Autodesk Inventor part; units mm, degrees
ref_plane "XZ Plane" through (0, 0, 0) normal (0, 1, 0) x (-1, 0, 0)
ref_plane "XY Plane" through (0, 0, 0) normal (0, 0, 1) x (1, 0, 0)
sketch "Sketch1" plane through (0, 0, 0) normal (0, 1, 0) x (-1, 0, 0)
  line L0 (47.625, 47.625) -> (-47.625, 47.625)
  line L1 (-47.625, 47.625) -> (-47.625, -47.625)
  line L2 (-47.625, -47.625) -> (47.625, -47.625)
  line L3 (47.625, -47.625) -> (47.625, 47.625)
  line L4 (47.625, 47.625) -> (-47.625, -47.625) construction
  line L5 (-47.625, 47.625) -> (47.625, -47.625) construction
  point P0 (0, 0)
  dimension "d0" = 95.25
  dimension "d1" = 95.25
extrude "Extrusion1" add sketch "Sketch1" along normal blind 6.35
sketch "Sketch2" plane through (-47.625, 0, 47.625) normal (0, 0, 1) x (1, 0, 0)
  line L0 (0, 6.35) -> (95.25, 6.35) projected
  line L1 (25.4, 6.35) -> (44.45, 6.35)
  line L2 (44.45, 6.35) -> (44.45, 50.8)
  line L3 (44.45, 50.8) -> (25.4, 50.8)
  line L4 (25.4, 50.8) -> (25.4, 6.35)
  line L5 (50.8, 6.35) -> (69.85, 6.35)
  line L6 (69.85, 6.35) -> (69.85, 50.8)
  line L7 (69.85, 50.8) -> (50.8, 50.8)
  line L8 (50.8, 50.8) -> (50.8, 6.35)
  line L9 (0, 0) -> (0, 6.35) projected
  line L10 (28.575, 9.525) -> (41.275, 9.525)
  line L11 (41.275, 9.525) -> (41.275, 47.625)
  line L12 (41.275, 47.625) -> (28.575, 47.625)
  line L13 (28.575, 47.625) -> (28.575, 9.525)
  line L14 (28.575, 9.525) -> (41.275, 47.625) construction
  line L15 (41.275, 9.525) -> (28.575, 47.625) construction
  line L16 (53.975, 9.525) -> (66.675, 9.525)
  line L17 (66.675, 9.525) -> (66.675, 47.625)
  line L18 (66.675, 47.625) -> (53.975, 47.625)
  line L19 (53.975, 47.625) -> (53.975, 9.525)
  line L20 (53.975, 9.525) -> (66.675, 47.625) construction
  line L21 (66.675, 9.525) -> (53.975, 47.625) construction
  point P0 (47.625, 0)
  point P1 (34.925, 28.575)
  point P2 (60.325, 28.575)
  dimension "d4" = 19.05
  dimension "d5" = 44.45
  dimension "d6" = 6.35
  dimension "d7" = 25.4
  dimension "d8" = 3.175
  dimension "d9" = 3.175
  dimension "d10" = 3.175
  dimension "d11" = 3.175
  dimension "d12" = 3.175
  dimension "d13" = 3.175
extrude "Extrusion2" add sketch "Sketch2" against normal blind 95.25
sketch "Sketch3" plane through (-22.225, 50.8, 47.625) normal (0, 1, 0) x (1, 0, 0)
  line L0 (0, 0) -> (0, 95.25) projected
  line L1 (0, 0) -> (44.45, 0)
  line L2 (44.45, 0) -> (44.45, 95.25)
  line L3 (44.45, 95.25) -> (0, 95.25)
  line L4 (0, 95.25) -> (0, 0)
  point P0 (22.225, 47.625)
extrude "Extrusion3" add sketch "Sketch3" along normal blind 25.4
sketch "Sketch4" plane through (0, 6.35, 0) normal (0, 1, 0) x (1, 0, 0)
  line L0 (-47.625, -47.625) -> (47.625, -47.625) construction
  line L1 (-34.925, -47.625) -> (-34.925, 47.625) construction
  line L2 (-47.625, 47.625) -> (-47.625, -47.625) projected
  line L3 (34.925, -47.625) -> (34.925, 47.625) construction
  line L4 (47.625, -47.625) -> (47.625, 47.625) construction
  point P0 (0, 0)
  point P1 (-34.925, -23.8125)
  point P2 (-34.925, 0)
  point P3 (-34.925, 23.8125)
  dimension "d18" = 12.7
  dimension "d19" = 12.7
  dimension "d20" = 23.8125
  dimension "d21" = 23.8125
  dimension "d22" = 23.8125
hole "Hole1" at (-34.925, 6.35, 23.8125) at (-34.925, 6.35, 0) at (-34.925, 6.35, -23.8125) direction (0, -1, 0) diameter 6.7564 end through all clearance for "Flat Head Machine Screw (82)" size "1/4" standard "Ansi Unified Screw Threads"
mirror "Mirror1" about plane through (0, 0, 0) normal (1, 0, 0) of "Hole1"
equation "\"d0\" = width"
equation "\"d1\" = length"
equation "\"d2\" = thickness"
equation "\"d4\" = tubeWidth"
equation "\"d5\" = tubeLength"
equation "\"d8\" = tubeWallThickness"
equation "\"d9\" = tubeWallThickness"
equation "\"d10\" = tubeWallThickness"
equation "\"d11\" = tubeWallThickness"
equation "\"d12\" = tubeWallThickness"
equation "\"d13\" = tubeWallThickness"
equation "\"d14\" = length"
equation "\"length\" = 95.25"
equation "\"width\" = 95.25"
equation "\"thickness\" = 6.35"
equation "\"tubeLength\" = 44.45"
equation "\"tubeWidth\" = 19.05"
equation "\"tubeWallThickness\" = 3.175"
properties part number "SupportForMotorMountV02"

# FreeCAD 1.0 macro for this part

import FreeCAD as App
import Part
import Sketcher
from FreeCAD import Vector
Q = App.Units.Quantity

doc = App.newDocument("Part")
body = doc.addObject("PartDesign::Body", "Body")

# Sketch on XZ plane
sketch1 = doc.addObject("Sketcher::SketchObject", "Sketch")
body.addObject(sketch1)
sketch1.AttachmentSupport = (doc.XZ_Plane, [""])
sketch1.MapMode = "FlatFace"
sketch1.addGeometry([
    Part.LineSegment(Vector(-48, -48, 0), Vector(-48, 48, 0)),
    Part.LineSegment(Vector(-48, 48, 0), Vector(48, 48, 0)),
    Part.LineSegment(Vector(48, 48, 0), Vector(48, -48, 0)),
    Part.LineSegment(Vector(48, -48, 0), Vector(-48, -48, 0)),
], False)
sketch1.addConstraint([
    Sketcher.Constraint("Coincident", 0, 2, 1, 1),
    Sketcher.Constraint("Coincident", 1, 2, 2, 1),
    Sketcher.Constraint("Coincident", 2, 2, 3, 1),
    Sketcher.Constraint("Coincident", 3, 2, 0, 1),
    Sketcher.Constraint("Vertical", 0),
    Sketcher.Constraint("Horizontal", 1),
    Sketcher.Constraint("Vertical", 2),
    Sketcher.Constraint("Horizontal", 3),
    Sketcher.Constraint("Symmetric", 0, 2, 2, 2, -1, 1),
    Sketcher.Constraint("Equal", 3, 0),
    Sketcher.Constraint("DistanceX", 1, 1, 1, 2, Q("3.75 in")),
])
pad1 = doc.addObject("PartDesign::Pad", "Pad")
body.addObject(pad1)
pad1.Profile = sketch1
pad1.Length = Q("0.25 in")
pad1.Reversed = True

# Sketch on XY plane
sketch2 = doc.addObject("Sketcher::SketchObject", "Sketch001")
body.addObject(sketch2)
sketch2.AttachmentSupport = (doc.XY_Plane, [""])
sketch2.MapMode = "FlatFace"
sketch2.AttachmentOffset = App.Placement(Vector(0, 0, 1.875 * 25.4), App.Rotation())
sketch2.addGeometry([
    Part.LineSegment(Vector(-22, 51, 0), Vector(-22, 6, 0)),  # 0
    Part.LineSegment(Vector(-22, 6, 0), Vector(-3, 6, 0)),  # 1
    Part.LineSegment(Vector(-3, 6, 0), Vector(-3, 51, 0)),  # 2
    Part.LineSegment(Vector(-3, 51, 0), Vector(-22, 51, 0)),  # 3
    Part.LineSegment(Vector(-6, 10, 0), Vector(-19, 10, 0)),  # 4
    Part.LineSegment(Vector(-19, 10, 0), Vector(-19, 48, 0)),  # 5
    Part.LineSegment(Vector(-19, 48, 0), Vector(-6, 48, 0)),  # 6
    Part.LineSegment(Vector(-6, 48, 0), Vector(-6, 10, 0)),  # 7
    Part.LineSegment(Vector(3, 51, 0), Vector(3, 6, 0)),  # 8
    Part.LineSegment(Vector(3, 6, 0), Vector(22, 6, 0)),  # 9
    Part.LineSegment(Vector(22, 6, 0), Vector(22, 51, 0)),  # 10
    Part.LineSegment(Vector(22, 51, 0), Vector(3, 51, 0)),  # 11
    Part.LineSegment(Vector(19, 10, 0), Vector(6, 10, 0)),  # 12
    Part.LineSegment(Vector(6, 10, 0), Vector(6, 48, 0)),  # 13
    Part.LineSegment(Vector(6, 48, 0), Vector(19, 48, 0)),  # 14
    Part.LineSegment(Vector(19, 48, 0), Vector(19, 10, 0)),  # 15
], False)
sketch2.addConstraint([
    Sketcher.Constraint("Coincident", 0, 2, 1, 1),
    Sketcher.Constraint("Coincident", 1, 2, 2, 1),
    Sketcher.Constraint("Coincident", 2, 2, 3, 1),
    Sketcher.Constraint("Coincident", 3, 2, 0, 1),
    Sketcher.Constraint("Coincident", 4, 2, 5, 1),
    Sketcher.Constraint("Coincident", 5, 2, 6, 1),
    Sketcher.Constraint("Coincident", 6, 2, 7, 1),
    Sketcher.Constraint("Coincident", 7, 2, 4, 1),
    Sketcher.Constraint("Coincident", 8, 2, 9, 1),
    Sketcher.Constraint("Coincident", 9, 2, 10, 1),
    Sketcher.Constraint("Coincident", 10, 2, 11, 1),
    Sketcher.Constraint("Coincident", 11, 2, 8, 1),
    Sketcher.Constraint("Coincident", 12, 2, 13, 1),
    Sketcher.Constraint("Coincident", 13, 2, 14, 1),
    Sketcher.Constraint("Coincident", 14, 2, 15, 1),
    Sketcher.Constraint("Coincident", 15, 2, 12, 1),
    Sketcher.Constraint("Vertical", 0),
    Sketcher.Constraint("Horizontal", 1),
    Sketcher.Constraint("Vertical", 2),
    Sketcher.Constraint("Horizontal", 3),
    Sketcher.Constraint("Horizontal", 4),
    Sketcher.Constraint("Vertical", 5),
    Sketcher.Constraint("Horizontal", 6),
    Sketcher.Constraint("Vertical", 7),
    Sketcher.Constraint("Vertical", 8),
    Sketcher.Constraint("Horizontal", 9),
    Sketcher.Constraint("Vertical", 10),
    Sketcher.Constraint("Horizontal", 11),
    Sketcher.Constraint("Horizontal", 12),
    Sketcher.Constraint("Vertical", 13),
    Sketcher.Constraint("Horizontal", 14),
    Sketcher.Constraint("Vertical", 15),
    Sketcher.Constraint("Symmetric", 1, 2, 8, 2, -2),
    Sketcher.Constraint("Symmetric", 3, 2, 10, 2, -2),
    Sketcher.Constraint("Symmetric", 7, 2, 12, 2, -2),
    Sketcher.Constraint("Symmetric", 5, 2, 14, 2, -2),
    Sketcher.Constraint("DistanceX", 0, 2, 8, 2, Q("1 in")),
    Sketcher.Constraint("DistanceX", 4, 2, 12, 2, Q("1 in")),
    Sketcher.Constraint("DistanceX", 1, 1, 1, 2, Q("0.75 in")),
    Sketcher.Constraint("DistanceY", 0, 2, 0, 1, Q("1.75 in")),
    Sketcher.Constraint("DistanceY", -1, 1, 0, 2, Q("0.25 in")),
    Sketcher.Constraint("DistanceX", 4, 2, -1, 1, Q("0.75 in")),
    Sketcher.Constraint("DistanceY", 5, 1, 5, 2, Q("1.5 in")),
    Sketcher.Constraint("DistanceY", 0, 2, 4, 2, Q("0.125 in")),
])
pad2 = doc.addObject("PartDesign::Pad", "Pad001")
body.addObject(pad2)
pad2.Profile = sketch2
pad2.Length = Q("3.75 in")
pad2.Reversed = True

# Sketch on XZ plane
sketch3 = doc.addObject("Sketcher::SketchObject", "Sketch002")
body.addObject(sketch3)
sketch3.AttachmentSupport = (doc.XZ_Plane, [""])
sketch3.MapMode = "FlatFace"
sketch3.AttachmentOffset = App.Placement(Vector(0, 0, -2 * 25.4), App.Rotation())
sketch3.addGeometry([
    Part.LineSegment(Vector(-22, -48, 0), Vector(-22, 48, 0)),
    Part.LineSegment(Vector(-22, 48, 0), Vector(22, 48, 0)),
    Part.LineSegment(Vector(22, 48, 0), Vector(22, -48, 0)),
    Part.LineSegment(Vector(22, -48, 0), Vector(-22, -48, 0)),
], False)
sketch3.addConstraint([
    Sketcher.Constraint("Coincident", 0, 2, 1, 1),
    Sketcher.Constraint("Coincident", 1, 2, 2, 1),
    Sketcher.Constraint("Coincident", 2, 2, 3, 1),
    Sketcher.Constraint("Coincident", 3, 2, 0, 1),
    Sketcher.Constraint("Vertical", 0),
    Sketcher.Constraint("Horizontal", 1),
    Sketcher.Constraint("Vertical", 2),
    Sketcher.Constraint("Horizontal", 3),
    Sketcher.Constraint("Symmetric", 0, 2, 2, 2, -1, 1),
    Sketcher.Constraint("DistanceX", 1, 1, 1, 2, Q("1.75 in")),
    Sketcher.Constraint("DistanceY", 0, 1, 0, 2, Q("3.75 in")),
])
pad3 = doc.addObject("PartDesign::Pad", "Pad002")
body.addObject(pad3)
pad3.Profile = sketch3
pad3.Length = Q("1 in")
pad3.Reversed = True

# Sketch on XZ plane
sketch4 = doc.addObject("Sketcher::SketchObject", "Sketch003")
body.addObject(sketch4)
sketch4.AttachmentSupport = (doc.XZ_Plane, [""])
sketch4.MapMode = "FlatFace"
sketch4.AttachmentOffset = App.Placement(Vector(0, 0, -0.25 * 25.4), App.Rotation())
sketch4.addGeometry([
    Part.Circle(Vector(-34.9, 23.8, 0), Vector(0, 0, 1), 3.4),
    Part.Circle(Vector(-34.9, 0, 0), Vector(0, 0, 1), 3.4),
    Part.Circle(Vector(-34.9, -23.8, 0), Vector(0, 0, 1), 3.4),
], False)
sketch4.addConstraint([
    Sketcher.Constraint("Equal", 0, 1),
    Sketcher.Constraint("Equal", 1, 2),
    Sketcher.Constraint("Symmetric", 0, 3, 2, 3, -1),
    Sketcher.Constraint("PointOnObject", 1, 3, -1),
    Sketcher.Constraint("Vertical", 0, 3, 1, 3),
    Sketcher.Constraint("Diameter", 0, Q("0.266 in")),
    Sketcher.Constraint("DistanceX", 0, 3, -1, 1, Q("1.375 in")),
    Sketcher.Constraint("DistanceY", -1, 1, 0, 3, Q("0.9375 in")),
])
doc.recompute()
hole = doc.addObject("PartDesign::Hole", "Hole")
body.addObject(hole)
hole.Profile = sketch4
hole.ThreadType = "None"
hole.Diameter = Q("0.266 in")
hole.DepthType = "ThroughAll"
hole.Reversed = True
doc.recompute()

mirrored = doc.addObject("PartDesign::Mirrored", "Mirrored")
body.addObject(mirrored)
mirrored.Originals = [hole]
mirrored.MirrorPlane = (doc.YZ_Plane, [""])
body.Tip = mirrored

doc.recompute()
